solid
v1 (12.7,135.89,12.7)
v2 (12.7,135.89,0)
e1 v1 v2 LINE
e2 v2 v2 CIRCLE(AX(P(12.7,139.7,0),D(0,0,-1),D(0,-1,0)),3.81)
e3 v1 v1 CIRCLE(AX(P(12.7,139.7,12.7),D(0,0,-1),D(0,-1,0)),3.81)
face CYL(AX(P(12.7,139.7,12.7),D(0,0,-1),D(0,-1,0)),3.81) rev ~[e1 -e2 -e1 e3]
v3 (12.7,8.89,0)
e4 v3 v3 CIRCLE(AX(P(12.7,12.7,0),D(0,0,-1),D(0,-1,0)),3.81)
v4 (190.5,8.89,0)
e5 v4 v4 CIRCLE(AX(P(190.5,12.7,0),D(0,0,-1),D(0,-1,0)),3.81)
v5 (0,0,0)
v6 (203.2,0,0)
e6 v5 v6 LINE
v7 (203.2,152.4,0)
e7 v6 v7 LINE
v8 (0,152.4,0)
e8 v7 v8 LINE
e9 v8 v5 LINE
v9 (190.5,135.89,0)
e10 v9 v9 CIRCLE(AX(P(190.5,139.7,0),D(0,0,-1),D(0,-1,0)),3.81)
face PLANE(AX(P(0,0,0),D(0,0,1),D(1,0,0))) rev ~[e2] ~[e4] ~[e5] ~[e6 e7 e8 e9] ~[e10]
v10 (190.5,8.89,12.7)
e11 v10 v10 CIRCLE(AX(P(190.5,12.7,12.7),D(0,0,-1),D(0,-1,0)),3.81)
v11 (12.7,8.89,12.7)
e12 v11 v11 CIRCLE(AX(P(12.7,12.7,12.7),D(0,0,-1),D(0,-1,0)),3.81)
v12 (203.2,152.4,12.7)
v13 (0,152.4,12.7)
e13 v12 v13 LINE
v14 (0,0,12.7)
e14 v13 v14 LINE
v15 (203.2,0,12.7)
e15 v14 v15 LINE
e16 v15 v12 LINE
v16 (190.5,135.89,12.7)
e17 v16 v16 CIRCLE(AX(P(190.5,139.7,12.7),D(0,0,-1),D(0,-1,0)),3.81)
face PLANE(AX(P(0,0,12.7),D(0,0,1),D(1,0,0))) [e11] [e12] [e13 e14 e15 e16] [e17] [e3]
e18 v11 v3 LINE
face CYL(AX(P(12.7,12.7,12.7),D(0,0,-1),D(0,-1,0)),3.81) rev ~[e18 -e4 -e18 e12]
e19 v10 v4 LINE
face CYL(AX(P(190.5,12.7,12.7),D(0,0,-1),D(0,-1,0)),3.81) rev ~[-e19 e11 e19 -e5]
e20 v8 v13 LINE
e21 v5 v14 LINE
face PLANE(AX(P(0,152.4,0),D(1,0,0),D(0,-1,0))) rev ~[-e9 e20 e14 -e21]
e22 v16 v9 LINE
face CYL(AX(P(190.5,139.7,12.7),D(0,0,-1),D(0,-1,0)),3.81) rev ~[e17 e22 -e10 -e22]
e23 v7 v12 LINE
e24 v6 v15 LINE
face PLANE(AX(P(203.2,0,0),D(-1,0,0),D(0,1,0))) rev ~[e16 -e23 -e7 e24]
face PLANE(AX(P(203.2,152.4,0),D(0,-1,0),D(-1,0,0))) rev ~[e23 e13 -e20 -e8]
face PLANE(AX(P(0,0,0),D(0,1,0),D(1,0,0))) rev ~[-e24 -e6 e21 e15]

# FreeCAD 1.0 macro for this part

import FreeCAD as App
import Part
import Sketcher
from FreeCAD import Vector
Q = App.Units.Quantity


def add_polygon(sketch, points):
    """Adds a closed chain of lines whose ends are joined by coincident constraints."""
    first, n = sketch.GeometryCount, len(points)
    for a, b in zip(points, points[1:] + points[:1]):
        sketch.addGeometry(Part.LineSegment(App.Vector(*a, 0), App.Vector(*b, 0)), False)
    for i in range(n):
        sketch.addConstraint(Sketcher.Constraint("Coincident", first + i, 2, first + (i + 1) % n, 1))

doc = App.newDocument("Part")
body = doc.addObject("PartDesign::Body", "Body")

# Sketch on XY plane
sketch1 = body.newObject("Sketcher::SketchObject", "Sketch")
sketch1.AttachmentSupport = (doc.getObject("XY_Plane"), [""])
sketch1.MapMode = "FlatFace"
add_polygon(sketch1, [(0, 152), (0, 0), (203, 0), (203, 152)])  # lines 0-3
sketch1.addConstraint(Sketcher.Constraint("Vertical", 0))
sketch1.addConstraint(Sketcher.Constraint("Horizontal", 1))
sketch1.addConstraint(Sketcher.Constraint("Vertical", 2))
sketch1.addConstraint(Sketcher.Constraint("Horizontal", 3))
sketch1.addConstraint(Sketcher.Constraint("Coincident", 0, 2, -1, 1))
sketch1.addConstraint(Sketcher.Constraint("DistanceX", 1, 1, 1, 2, Q("8 in")))
sketch1.addConstraint(Sketcher.Constraint("DistanceY", 0, 2, 0, 1, Q("6 in")))
pad1 = body.newObject("PartDesign::Pad", "Pad")
pad1.Profile = sketch1
pad1.Length = Q("0.5 in")

# Sketch on XY plane
sketch2 = body.newObject("Sketcher::SketchObject", "Sketch001")
sketch2.AttachmentSupport = (doc.getObject("XY_Plane"), [""])
sketch2.MapMode = "FlatFace"
sketch2.AttachmentOffset = App.Placement(Vector(0, 0, 0.5 * 25.4), App.Rotation())
sketch2.addGeometry(Part.Circle(Vector(12.7, 139.7, 0), Vector(0, 0, 1), 3.8), False)
sketch2.addGeometry(Part.Circle(Vector(190.5, 139.7, 0), Vector(0, 0, 1), 3.8), False)
sketch2.addGeometry(Part.Circle(Vector(190.5, 12.7, 0), Vector(0, 0, 1), 3.8), False)
sketch2.addGeometry(Part.Circle(Vector(12.7, 12.7, 0), Vector(0, 0, 1), 3.8), False)
sketch2.addConstraint(Sketcher.Constraint("Equal", 0, 1))
sketch2.addConstraint(Sketcher.Constraint("Equal", 1, 2))
sketch2.addConstraint(Sketcher.Constraint("Equal", 2, 3))
sketch2.addConstraint(Sketcher.Constraint("Horizontal", 0, 3, 1, 3))
sketch2.addConstraint(Sketcher.Constraint("Horizontal", 2, 3, 3, 3))
sketch2.addConstraint(Sketcher.Constraint("Vertical", 1, 3, 2, 3))
sketch2.addConstraint(Sketcher.Constraint("Vertical", 0, 3, 3, 3))
sketch2.addConstraint(Sketcher.Constraint("Diameter", 0, Q("0.3 in")))
sketch2.addConstraint(Sketcher.Constraint("DistanceX", 0, 3, 1, 3, Q("7 in")))
sketch2.addConstraint(Sketcher.Constraint("DistanceY", 2, 3, 1, 3, Q("5 in")))
sketch2.addConstraint(Sketcher.Constraint("DistanceX", -1, 1, 0, 3, Q("0.5 in")))
sketch2.addConstraint(Sketcher.Constraint("DistanceY", -1, 1, 0, 3, Q("5.5 in")))
doc.recompute()
hole = body.newObject("PartDesign::Hole", "Hole")
hole.Profile = sketch2
hole.ThreadType = "None"
hole.Diameter = Q("0.3 in")
hole.DepthType = "ThroughAll"

doc.recompute()
